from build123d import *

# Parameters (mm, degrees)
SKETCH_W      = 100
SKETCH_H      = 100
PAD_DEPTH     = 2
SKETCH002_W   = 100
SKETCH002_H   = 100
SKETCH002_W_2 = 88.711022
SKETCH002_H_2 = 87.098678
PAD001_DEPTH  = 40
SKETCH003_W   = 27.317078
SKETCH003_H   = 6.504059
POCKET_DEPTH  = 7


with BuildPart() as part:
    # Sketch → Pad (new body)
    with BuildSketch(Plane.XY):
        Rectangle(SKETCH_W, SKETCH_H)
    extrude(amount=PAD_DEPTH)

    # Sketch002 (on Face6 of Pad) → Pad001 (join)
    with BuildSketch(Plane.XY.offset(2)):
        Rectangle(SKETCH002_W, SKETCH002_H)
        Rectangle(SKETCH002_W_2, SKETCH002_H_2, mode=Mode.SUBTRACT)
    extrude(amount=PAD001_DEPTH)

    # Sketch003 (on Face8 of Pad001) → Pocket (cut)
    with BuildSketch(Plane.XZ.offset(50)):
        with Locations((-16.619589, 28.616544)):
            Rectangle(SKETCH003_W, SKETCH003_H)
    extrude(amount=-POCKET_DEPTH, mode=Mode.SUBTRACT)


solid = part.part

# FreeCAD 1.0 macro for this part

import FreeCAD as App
import Part
import Sketcher
from FreeCAD import Vector
Q = App.Units.Quantity


def add_polygon(sketch, points):
    """Adds a closed chain of lines whose ends are joined by coincident constraints."""
    first, n = sketch.GeometryCount, len(points)
    for a, b in zip(points, points[1:] + points[:1]):
        sketch.addGeometry(Part.LineSegment(App.Vector(*a, 0), App.Vector(*b, 0)), False)
    for i in range(n):
        sketch.addConstraint(Sketcher.Constraint("Coincident", first + i, 2, first + (i + 1) % n, 1))

doc = App.newDocument("Part")
body = doc.addObject("PartDesign::Body", "Body")

sketch1 = body.newObject("Sketcher::SketchObject", "Sketch")
sketch1.AttachmentSupport = (doc.getObject("XY_Plane"), [""])
sketch1.MapMode = "FlatFace"
add_polygon(sketch1, [(-50, 50), (-50, -50), (50, -50), (50, 50)])
sketch1.addConstraint([
    Sketcher.Constraint("Vertical", 0),
    Sketcher.Constraint("Horizontal", 1),
    Sketcher.Constraint("Vertical", 2),
    Sketcher.Constraint("Horizontal", 3),
    Sketcher.Constraint("Symmetric", 0, 2, 2, 2, -1, 1),
    Sketcher.Constraint("Equal", 3, 0),
    Sketcher.Constraint("DistanceX", 1, 1, 1, 2, Q("100 mm")),
])
pad1 = body.newObject("PartDesign::Pad", "Pad")
pad1.Profile = sketch1
pad1.Length = 2

sketch2 = body.newObject("Sketcher::SketchObject", "Sketch001")
sketch2.AttachmentSupport = (doc.getObject("XY_Plane"), [""])
sketch2.MapMode = "FlatFace"
sketch2.AttachmentOffset = App.Placement(Vector(0, 0, 2), App.Rotation())
add_polygon(sketch2, [(-50, 50), (-50, -50), (50, -50), (50, 50)])
add_polygon(sketch2, [(44, -44), (-44, -44), (-44, 44), (44, 44)])
sketch2.addConstraint([
    Sketcher.Constraint("Vertical", 0),
    Sketcher.Constraint("Horizontal", 1),
    Sketcher.Constraint("Vertical", 2),
    Sketcher.Constraint("Horizontal", 3),
    Sketcher.Constraint("Horizontal", 4),
    Sketcher.Constraint("Vertical", 5),
    Sketcher.Constraint("Horizontal", 6),
    Sketcher.Constraint("Vertical", 7),
    Sketcher.Constraint("Symmetric", 0, 2, 2, 2, -1, 1),
    Sketcher.Constraint("Symmetric", 4, 2, 6, 2, -1, 1),
    Sketcher.Constraint("Equal", 3, 0),
    Sketcher.Constraint("DistanceX", 1, 1, 1, 2, Q("100 mm")),
    Sketcher.Constraint("DistanceX", 4, 2, 4, 1, Q("88.711022 mm")),
    Sketcher.Constraint("DistanceY", 5, 1, 5, 2, Q("87.098678 mm")),
])
pad2 = body.newObject("PartDesign::Pad", "Pad001")
pad2.Profile = sketch2
pad2.Length = 40

sketch3 = body.newObject("Sketcher::SketchObject", "Sketch002")
sketch3.AttachmentSupport = (doc.getObject("XZ_Plane"), [""])
sketch3.MapMode = "FlatFace"
sketch3.AttachmentOffset = App.Placement(Vector(0, 0, 50), App.Rotation())
add_polygon(sketch3, [(-30, 32), (-30, 25), (-3, 25), (-3, 32)])
sketch3.addConstraint([
    Sketcher.Constraint("Vertical", 0),
    Sketcher.Constraint("Horizontal", 1),
    Sketcher.Constraint("Vertical", 2),
    Sketcher.Constraint("Horizontal", 3),
    Sketcher.Constraint("DistanceY", 0, 2, 0, 1, Q("6.504059 mm")),
    Sketcher.Constraint("DistanceX", 1, 1, 1, 2, Q("27.317078 mm")),
    Sketcher.Constraint("DistanceX", 1, 2, -1, 1, Q("2.96105 mm")),
    Sketcher.Constraint("DistanceY", -1, 1, 0, 2, Q("25.364514 mm")),
])
pocket1 = body.newObject("PartDesign::Pocket", "Pocket")
pocket1.Profile = sketch3
pocket1.Length = 7

doc.recompute()
